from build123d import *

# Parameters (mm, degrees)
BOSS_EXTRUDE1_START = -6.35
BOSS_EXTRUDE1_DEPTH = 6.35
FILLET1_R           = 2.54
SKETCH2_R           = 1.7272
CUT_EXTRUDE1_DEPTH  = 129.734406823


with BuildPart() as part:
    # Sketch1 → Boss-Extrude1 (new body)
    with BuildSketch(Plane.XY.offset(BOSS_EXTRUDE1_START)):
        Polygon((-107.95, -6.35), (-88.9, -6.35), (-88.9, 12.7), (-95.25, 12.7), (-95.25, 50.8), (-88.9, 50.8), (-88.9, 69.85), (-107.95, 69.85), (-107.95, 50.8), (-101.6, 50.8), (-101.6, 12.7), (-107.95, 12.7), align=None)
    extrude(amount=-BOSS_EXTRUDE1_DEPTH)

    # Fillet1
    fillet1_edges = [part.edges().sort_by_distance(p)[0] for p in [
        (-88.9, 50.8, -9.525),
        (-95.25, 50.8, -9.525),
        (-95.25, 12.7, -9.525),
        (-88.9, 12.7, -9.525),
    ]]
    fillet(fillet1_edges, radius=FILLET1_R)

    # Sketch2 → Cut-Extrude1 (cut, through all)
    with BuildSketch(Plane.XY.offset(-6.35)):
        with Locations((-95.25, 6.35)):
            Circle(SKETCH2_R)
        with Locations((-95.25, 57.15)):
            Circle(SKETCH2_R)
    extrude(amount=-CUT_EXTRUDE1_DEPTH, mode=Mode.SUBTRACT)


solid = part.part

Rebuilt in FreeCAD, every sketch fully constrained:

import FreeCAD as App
import Part
import Sketcher
from FreeCAD import Vector
Q = App.Units.Quantity


def edges_at(feature, points):
    """Names of the edges that pass closest to the given points."""
    edges = feature.Shape.Edges
    near = lambda p: min(range(len(edges)), key=lambda i: edges[i].distToShape(Part.Vertex(*p))[0])
    return sorted({f"Edge{near(p) + 1}" for p in points})


def add_polygon(sketch, points):
    """Adds a closed chain of lines whose ends are joined by coincident constraints."""
    first, n = sketch.GeometryCount, len(points)
    for a, b in zip(points, points[1:] + points[:1]):
        sketch.addGeometry(Part.LineSegment(App.Vector(*a, 0), App.Vector(*b, 0)), False)
    for i in range(n):
        sketch.addConstraint(Sketcher.Constraint("Coincident", first + i, 2, first + (i + 1) % n, 1))

doc = App.newDocument("Part")
body = doc.addObject("PartDesign::Body", "Body")

# Sketch on XY plane
sketch1 = body.newObject("Sketcher::SketchObject", "Sketch")
sketch1.AttachmentSupport = (doc.getObject("XY_Plane"), [""])
sketch1.MapMode = "FlatFace"
sketch1.AttachmentOffset = App.Placement(Vector(0, 0, -0.25 * 25.4), App.Rotation())
add_polygon(sketch1, [(-107.95, -6.35), (-88.9, -6.35), (-88.9, 12.7), (-95.25, 12.7), (-95.25, 50.8), (-88.9, 50.8), (-88.9, 69.85), (-107.95, 69.85), (-107.95, 50.8), (-101.6, 50.8), (-101.6, 12.7), (-107.95, 12.7)])  # lines 0-11
sketch1.addConstraint([
    Sketcher.Constraint("Horizontal", 0),
    Sketcher.Constraint("Vertical", 1),
    Sketcher.Constraint("Horizontal", 2),
    Sketcher.Constraint("Vertical", 3),
    Sketcher.Constraint("Horizontal", 4),
    Sketcher.Constraint("Vertical", 5),
    Sketcher.Constraint("Horizontal", 6),
    Sketcher.Constraint("Vertical", 7),
    Sketcher.Constraint("Horizontal", 8),
    Sketcher.Constraint("Vertical", 9),
    Sketcher.Constraint("Horizontal", 10),
    Sketcher.Constraint("Vertical", 11),
    Sketcher.Constraint("Horizontal", 4, 2, 7, 2),
    Sketcher.Constraint("Horizontal", 2, 2, 9, 2),
    Sketcher.Constraint("Vertical", 1, 2, 4, 2),
    Sketcher.Constraint("Vertical", 7, 2, 10, 2),
    Sketcher.Constraint("Equal", 4, 8),
    Sketcher.Constraint("Equal", 6, 1),
    Sketcher.Constraint("Equal", 1, 5),
    Sketcher.Constraint("DistanceY", 3, 1, 3, 2, Q("1.5 in")),
    Sketcher.Constraint("DistanceY", -1, 1, 3, 2, Q("2 in")),
    Sketcher.Constraint("DistanceX", 8, 2, -1, 1, Q("4 in")),
    Sketcher.Constraint("DistanceY", 0, 2, 5, 2, Q("3 in")),
    Sketcher.Constraint("DistanceX", 2, 2, 2, 1, Q("0.25 in")),
])
pad1 = body.newObject("PartDesign::Pad", "Pad")
pad1.Profile = sketch1
pad1.Length = Q("0.25 in")
pad1.Reversed = True
doc.recompute()

fillet = body.newObject("PartDesign::Fillet", "Fillet")
fillet.Base = (pad1, edges_at(pad1, [
    (-88.9, 50.8, -9.525),
    (-95.25, 50.8, -9.525),
    (-95.25, 12.7, -9.525),
    (-88.9, 12.7, -9.525),
]))
fillet.Radius = Q("0.1 in")

# Sketch on XY plane
sketch2 = body.newObject("Sketcher::SketchObject", "Sketch001")
sketch2.AttachmentSupport = (doc.getObject("XY_Plane"), [""])
sketch2.MapMode = "FlatFace"
sketch2.AttachmentOffset = App.Placement(Vector(0, 0, -0.25 * 25.4), App.Rotation())
sketch2.addGeometry([
    Part.Circle(Vector(-95.25, 6.35, 0), Vector(0, 0, 1), 1.7272),
    Part.Circle(Vector(-95.25, 57.15, 0), Vector(0, 0, 1), 1.7272),
], False)
sketch2.addConstraint([
    Sketcher.Constraint("Equal", 0, 1),
    Sketcher.Constraint("Vertical", 0, 3, 1, 3),
    Sketcher.Constraint("Diameter", 0, Q("0.136 in")),
    Sketcher.Constraint("DistanceY", 0, 3, 1, 3, Q("2 in")),
    Sketcher.Constraint("DistanceX", 0, 3, -1, 1, Q("3.75 in")),
    Sketcher.Constraint("DistanceY", -1, 1, 0, 3, Q("0.25 in")),
])
pocket1 = body.newObject("PartDesign::Pocket", "Pocket")
pocket1.Profile = sketch2
pocket1.Type = "ThroughAll"

doc.recompute()
